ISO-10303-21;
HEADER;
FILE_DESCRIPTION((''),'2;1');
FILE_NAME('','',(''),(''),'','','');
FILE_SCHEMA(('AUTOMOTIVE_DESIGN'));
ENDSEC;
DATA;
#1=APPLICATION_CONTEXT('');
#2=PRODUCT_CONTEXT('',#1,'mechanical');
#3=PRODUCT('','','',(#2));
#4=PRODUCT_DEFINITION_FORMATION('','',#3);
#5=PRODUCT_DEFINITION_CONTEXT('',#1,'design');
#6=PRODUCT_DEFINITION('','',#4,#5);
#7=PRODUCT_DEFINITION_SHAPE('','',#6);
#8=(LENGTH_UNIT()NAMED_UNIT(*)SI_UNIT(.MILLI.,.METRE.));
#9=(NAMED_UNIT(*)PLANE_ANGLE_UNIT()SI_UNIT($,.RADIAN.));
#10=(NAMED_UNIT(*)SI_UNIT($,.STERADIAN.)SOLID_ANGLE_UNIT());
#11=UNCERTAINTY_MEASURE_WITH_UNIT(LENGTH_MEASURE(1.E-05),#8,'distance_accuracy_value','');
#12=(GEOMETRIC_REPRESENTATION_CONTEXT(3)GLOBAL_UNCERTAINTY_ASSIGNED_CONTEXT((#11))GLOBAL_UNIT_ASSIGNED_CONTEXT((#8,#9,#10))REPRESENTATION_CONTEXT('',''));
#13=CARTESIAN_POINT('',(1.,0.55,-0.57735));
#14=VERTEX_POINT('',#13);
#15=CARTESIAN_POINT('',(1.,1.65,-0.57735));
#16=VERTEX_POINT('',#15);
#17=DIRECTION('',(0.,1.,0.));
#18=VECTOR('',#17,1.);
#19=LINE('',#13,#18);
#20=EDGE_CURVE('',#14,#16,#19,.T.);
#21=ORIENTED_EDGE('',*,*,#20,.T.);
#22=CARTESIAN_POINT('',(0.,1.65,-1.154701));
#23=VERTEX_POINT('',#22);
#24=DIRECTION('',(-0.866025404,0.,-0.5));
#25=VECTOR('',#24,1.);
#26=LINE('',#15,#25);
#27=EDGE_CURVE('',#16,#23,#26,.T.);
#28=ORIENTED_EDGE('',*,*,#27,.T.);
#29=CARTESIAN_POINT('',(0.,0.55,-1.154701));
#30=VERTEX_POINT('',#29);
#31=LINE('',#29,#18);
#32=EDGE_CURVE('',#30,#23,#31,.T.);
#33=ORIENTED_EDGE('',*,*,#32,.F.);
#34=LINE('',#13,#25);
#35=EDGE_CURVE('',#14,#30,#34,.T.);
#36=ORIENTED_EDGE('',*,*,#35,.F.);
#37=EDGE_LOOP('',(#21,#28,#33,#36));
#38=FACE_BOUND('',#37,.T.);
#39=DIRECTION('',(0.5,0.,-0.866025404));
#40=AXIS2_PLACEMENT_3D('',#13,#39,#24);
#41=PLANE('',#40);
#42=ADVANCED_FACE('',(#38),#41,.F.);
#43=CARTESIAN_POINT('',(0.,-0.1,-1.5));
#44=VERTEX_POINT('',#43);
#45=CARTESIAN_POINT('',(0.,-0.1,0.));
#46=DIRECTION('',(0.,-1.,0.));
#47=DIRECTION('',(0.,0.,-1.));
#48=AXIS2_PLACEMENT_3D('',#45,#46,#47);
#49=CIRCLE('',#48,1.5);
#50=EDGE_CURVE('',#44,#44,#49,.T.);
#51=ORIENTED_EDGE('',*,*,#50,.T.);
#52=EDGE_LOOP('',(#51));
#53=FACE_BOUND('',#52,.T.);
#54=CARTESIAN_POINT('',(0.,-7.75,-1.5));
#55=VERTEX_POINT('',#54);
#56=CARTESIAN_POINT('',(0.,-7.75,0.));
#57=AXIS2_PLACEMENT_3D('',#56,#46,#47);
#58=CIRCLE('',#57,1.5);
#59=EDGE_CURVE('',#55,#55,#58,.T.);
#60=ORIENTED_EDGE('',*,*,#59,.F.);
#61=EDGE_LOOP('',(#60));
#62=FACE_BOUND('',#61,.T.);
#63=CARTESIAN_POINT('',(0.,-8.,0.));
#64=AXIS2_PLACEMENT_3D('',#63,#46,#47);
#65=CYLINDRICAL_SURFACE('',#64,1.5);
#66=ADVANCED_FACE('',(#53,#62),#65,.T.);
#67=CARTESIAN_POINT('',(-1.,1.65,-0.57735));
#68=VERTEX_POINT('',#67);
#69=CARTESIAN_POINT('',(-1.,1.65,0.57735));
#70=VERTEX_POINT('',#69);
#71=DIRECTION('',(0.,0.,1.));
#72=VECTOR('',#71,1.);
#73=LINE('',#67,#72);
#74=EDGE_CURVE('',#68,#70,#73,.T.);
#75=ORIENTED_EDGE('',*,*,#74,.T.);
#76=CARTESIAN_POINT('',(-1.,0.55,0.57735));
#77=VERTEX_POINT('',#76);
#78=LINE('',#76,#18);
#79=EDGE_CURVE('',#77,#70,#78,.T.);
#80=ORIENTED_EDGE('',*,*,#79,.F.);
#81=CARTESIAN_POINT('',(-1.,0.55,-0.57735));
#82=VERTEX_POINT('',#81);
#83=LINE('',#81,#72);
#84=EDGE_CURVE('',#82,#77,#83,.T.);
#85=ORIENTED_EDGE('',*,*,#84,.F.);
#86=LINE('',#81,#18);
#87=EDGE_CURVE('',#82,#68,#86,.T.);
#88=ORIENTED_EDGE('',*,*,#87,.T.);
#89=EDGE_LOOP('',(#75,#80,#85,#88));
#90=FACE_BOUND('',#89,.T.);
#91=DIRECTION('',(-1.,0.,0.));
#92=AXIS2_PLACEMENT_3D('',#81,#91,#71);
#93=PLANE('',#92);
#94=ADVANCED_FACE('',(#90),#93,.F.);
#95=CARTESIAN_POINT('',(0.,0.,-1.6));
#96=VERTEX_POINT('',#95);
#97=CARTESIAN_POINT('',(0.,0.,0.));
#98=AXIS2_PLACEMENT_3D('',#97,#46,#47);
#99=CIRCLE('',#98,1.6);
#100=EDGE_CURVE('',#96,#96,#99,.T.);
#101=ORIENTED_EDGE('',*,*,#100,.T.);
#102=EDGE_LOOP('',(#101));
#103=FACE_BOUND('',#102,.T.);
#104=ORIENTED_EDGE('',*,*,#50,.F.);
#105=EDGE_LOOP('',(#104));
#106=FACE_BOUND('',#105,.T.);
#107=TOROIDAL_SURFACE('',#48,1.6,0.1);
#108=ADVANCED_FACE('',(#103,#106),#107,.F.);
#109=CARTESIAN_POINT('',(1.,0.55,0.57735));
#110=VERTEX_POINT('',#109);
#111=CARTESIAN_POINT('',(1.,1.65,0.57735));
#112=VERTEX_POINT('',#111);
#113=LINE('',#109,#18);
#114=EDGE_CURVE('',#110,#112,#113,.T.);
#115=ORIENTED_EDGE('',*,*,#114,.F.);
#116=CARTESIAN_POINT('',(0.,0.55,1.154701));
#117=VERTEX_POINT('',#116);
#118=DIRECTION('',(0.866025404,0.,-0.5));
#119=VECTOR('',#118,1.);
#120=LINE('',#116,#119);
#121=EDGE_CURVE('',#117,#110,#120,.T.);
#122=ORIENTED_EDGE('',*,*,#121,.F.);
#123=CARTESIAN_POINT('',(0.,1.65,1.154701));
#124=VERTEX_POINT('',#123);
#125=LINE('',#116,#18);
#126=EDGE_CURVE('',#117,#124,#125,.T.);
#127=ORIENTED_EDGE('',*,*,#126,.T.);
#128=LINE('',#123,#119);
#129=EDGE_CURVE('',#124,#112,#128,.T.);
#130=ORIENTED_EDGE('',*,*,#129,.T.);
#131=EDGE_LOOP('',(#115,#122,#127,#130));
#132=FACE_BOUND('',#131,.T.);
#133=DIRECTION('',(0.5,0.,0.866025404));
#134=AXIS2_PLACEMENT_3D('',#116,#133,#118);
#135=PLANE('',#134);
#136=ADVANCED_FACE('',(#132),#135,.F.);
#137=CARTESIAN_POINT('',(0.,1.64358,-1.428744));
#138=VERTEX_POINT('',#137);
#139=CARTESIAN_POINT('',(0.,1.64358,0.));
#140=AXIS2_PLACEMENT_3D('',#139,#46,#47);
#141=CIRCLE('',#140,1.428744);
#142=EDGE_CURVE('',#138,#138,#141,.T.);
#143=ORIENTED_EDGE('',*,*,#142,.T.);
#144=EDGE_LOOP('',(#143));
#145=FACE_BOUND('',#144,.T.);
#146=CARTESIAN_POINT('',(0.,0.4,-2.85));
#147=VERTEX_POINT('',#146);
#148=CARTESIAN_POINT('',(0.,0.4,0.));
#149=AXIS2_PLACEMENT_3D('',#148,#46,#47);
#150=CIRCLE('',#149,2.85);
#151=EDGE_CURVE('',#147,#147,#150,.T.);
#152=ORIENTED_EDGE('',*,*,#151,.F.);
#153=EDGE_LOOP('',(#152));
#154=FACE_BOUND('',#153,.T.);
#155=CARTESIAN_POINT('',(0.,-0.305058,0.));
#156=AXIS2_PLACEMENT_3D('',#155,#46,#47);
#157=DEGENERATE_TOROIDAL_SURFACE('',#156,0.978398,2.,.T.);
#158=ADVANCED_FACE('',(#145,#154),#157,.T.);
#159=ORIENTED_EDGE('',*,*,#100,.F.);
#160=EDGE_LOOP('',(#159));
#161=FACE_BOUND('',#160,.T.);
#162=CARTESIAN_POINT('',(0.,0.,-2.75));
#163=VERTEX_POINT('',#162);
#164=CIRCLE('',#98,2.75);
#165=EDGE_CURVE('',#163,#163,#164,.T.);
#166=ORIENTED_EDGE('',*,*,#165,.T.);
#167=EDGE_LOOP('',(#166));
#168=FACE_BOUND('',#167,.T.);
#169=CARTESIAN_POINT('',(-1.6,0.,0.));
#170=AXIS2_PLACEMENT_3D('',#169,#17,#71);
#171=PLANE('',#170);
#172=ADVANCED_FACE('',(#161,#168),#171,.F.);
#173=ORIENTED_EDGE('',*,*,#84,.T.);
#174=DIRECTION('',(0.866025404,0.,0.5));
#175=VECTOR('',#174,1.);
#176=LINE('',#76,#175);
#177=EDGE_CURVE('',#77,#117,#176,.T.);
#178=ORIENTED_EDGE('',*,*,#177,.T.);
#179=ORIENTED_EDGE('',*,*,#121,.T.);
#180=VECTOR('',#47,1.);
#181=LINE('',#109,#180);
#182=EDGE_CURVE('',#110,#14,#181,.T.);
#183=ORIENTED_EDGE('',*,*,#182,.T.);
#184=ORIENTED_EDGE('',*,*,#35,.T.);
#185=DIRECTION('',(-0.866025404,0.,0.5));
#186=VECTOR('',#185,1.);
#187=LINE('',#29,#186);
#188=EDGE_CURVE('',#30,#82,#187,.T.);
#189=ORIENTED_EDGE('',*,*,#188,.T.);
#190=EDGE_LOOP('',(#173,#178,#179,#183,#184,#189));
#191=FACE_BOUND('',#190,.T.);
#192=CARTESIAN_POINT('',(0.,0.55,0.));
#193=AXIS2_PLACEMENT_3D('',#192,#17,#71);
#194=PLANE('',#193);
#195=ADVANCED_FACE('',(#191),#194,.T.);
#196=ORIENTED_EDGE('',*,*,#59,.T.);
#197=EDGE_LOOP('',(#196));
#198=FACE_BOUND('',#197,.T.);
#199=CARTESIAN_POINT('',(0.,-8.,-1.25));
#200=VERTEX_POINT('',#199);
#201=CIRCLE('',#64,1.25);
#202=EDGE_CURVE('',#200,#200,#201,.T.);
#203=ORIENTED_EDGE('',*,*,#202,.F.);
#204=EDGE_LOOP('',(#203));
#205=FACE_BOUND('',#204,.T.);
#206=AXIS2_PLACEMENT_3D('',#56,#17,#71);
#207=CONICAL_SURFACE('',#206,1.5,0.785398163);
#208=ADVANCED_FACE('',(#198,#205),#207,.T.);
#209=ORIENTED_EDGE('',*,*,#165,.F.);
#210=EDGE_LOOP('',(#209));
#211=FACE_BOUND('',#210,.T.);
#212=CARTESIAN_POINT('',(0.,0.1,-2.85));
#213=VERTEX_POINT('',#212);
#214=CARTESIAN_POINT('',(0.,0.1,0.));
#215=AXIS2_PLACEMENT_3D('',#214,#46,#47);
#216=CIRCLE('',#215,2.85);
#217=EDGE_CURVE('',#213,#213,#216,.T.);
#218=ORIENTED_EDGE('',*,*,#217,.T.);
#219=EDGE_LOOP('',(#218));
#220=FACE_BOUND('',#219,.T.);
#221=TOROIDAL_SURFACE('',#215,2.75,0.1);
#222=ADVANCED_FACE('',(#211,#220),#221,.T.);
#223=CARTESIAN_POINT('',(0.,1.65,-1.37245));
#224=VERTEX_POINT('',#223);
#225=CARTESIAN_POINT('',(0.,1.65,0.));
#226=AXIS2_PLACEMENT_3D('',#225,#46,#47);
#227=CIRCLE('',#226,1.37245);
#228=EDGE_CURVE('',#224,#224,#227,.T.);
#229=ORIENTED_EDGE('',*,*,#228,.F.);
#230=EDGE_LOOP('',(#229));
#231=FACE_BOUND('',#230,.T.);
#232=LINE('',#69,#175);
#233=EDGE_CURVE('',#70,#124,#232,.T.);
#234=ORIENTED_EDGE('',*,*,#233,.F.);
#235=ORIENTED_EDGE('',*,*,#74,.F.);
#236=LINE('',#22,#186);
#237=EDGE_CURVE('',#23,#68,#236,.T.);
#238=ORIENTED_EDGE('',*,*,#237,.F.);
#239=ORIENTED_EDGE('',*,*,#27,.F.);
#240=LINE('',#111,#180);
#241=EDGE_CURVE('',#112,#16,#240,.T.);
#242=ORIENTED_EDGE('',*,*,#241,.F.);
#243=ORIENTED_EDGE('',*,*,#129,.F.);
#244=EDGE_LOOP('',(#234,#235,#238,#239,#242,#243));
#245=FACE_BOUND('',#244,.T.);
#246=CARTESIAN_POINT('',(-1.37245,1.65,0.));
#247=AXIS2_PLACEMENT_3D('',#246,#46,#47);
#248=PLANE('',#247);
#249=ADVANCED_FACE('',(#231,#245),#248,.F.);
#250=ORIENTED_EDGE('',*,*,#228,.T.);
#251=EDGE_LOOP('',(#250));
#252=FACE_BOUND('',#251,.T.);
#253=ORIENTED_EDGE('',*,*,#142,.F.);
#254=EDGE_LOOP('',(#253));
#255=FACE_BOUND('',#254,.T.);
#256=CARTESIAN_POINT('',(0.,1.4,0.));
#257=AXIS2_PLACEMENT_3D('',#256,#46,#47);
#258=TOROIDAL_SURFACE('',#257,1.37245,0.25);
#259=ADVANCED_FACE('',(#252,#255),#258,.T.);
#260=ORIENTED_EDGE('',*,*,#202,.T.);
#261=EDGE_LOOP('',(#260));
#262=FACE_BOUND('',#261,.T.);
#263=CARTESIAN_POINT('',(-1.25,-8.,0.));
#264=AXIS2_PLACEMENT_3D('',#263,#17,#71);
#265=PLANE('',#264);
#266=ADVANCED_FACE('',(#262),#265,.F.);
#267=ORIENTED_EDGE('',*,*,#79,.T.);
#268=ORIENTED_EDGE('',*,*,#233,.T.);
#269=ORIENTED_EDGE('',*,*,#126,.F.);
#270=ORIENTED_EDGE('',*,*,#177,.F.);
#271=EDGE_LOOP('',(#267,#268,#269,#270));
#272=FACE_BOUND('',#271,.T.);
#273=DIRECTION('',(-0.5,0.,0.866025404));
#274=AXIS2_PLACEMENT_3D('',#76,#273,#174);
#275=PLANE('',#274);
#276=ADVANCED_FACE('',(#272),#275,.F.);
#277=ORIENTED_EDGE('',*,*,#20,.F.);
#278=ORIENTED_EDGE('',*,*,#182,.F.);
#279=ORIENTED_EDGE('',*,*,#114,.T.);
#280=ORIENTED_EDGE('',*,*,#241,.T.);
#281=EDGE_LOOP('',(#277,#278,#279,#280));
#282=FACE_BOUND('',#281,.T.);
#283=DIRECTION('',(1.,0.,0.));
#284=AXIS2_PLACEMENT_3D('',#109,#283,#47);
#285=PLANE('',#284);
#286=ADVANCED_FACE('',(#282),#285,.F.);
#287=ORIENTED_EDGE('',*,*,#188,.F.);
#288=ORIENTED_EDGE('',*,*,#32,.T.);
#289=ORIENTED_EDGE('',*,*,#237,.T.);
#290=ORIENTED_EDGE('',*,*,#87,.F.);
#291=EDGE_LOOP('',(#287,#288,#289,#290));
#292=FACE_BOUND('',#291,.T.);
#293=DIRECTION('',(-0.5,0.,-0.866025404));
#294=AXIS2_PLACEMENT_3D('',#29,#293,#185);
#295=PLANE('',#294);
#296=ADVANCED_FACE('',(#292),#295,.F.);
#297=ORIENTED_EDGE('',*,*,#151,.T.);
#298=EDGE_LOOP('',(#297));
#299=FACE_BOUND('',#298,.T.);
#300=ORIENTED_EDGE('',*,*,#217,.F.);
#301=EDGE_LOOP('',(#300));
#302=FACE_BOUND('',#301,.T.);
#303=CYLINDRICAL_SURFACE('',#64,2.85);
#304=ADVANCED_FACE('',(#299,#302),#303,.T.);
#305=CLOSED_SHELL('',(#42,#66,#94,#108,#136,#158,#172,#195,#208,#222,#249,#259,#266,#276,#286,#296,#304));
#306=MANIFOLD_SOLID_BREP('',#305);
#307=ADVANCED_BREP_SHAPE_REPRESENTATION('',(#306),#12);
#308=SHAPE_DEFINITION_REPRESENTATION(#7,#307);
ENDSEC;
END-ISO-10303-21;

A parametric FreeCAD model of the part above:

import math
import FreeCAD as App
import Part
import Sketcher

V = App.Vector
Q = App.Units.Quantity

doc = App.newDocument("Part")
body = doc.addObject("PartDesign::Body", "Body")

# Sketch on XY plane
sketch1 = doc.addObject("Sketcher::SketchObject", "Sketch")
body.addObject(sketch1)
sketch1.AttachmentSupport = (doc.XY_Plane, [""])
sketch1.MapMode = "FlatFace"
sketch1.addGeometry([
    Part.LineSegment(V(-1.5, -0.1, 0), V(-1.5, -7.75, 0)),  # 0
    Part.LineSegment(V(-1.5, -7.75, 0), V(-1.25, -8, 0)),  # 1
    Part.LineSegment(V(-1.25, -8, 0), V(0, -8, 0)),  # 2
    Part.LineSegment(V(0, -8, 0), V(0, 1.65, 0)),  # 3
    Part.LineSegment(V(0, 1.65, 0), V(-1.37245, 1.65, 0)),  # 4
    Part.ArcOfCircle(Part.Circle(V(-1.37245, 1.4, 0), V(0, 0, 1), 0.25), math.radians(90.000002), math.radians(103.013027)),  # 5
    Part.ArcOfCircle(Part.Circle(V(-0.978398, -0.305058, 0), V(0, 0, 1), 2), math.radians(103.01303), math.radians(159.35792)),  # 6
    Part.LineSegment(V(-2.85, 0.4, 0), V(-2.85, 0.1, 0)),  # 7
    Part.ArcOfCircle(Part.Circle(V(-2.75, 0.1, 0), V(0, 0, 1), 0.1), math.radians(180), math.radians(270)),  # 8
    Part.LineSegment(V(-2.75, 0, 0), V(-1.6, 0, 0)),  # 9
    Part.ArcOfCircle(Part.Circle(V(-1.6, -0.1, 0), V(0, 0, 1), 0.1), math.radians(0), math.radians(90)),  # 10
], False)
sketch1.addConstraint([
    Sketcher.Constraint("Coincident", 0, 2, 1, 1),
    Sketcher.Constraint("Coincident", 1, 2, 2, 1),
    Sketcher.Constraint("Coincident", 2, 2, 3, 1),
    Sketcher.Constraint("Coincident", 3, 2, 4, 1),
    Sketcher.Constraint("Tangent", 4, 2, 5, 1),
    Sketcher.Constraint("Tangent", 5, 2, 6, 1),
    Sketcher.Constraint("Coincident", 6, 2, 7, 1),
    Sketcher.Constraint("Tangent", 7, 2, 8, 1),
    Sketcher.Constraint("Tangent", 8, 2, 9, 1),
    Sketcher.Constraint("Tangent", 9, 2, 10, 2),
    Sketcher.Constraint("Tangent", 10, 1, 0, 1),
    Sketcher.Constraint("Vertical", 0),
    Sketcher.Constraint("Horizontal", 2),
    Sketcher.Constraint("Vertical", 3),
    Sketcher.Constraint("Horizontal", 4),
    Sketcher.Constraint("Vertical", 7),
    Sketcher.Constraint("Horizontal", 9),
    Sketcher.Constraint("Equal", 8, 10),
    Sketcher.Constraint("PointOnObject", 2, 2, -2),
    Sketcher.Constraint("PointOnObject", 8, 2, -1),
    Sketcher.Constraint("Radius", 6, 2.0),
    Sketcher.Constraint("Radius", 8, 0.1),
    Sketcher.Constraint("Angle", 1, Q("-45 deg")),
    Sketcher.Constraint("Radius", 5, 0.25),
    Sketcher.Constraint("DistanceY", 7, 2, 7, 1, 0.3),
    Sketcher.Constraint("DistanceY", 1, 2, -1, 1, 8.0),
    Sketcher.Constraint("DistanceY", 6, 2, 5, 3, 1.0),
    Sketcher.Constraint("DistanceX", 2, 1, 2, 2, 1.25),
    Sketcher.Constraint("DistanceX", 9, 1, 9, 2, 1.15),
    Sketcher.Constraint("DistanceY", 0, 2, 0, 1, 7.65),
    Sketcher.Constraint("DistanceX", 4, 2, 4, 1, 1.37245),
])
revolution = doc.addObject("PartDesign::Revolution", "Revolution")
body.addObject(revolution)
revolution.Profile = sketch1
revolution.ReferenceAxis = (sketch1, ["V_Axis"])
revolution.Angle = 360

# Sketch on XZ plane
sketch2 = doc.addObject("Sketcher::SketchObject", "Sketch001")
body.addObject(sketch2)
sketch2.AttachmentSupport = (doc.XZ_Plane, [""])
sketch2.MapMode = "FlatFace"
sketch2.AttachmentOffset = App.Placement(V(0, 0, -1.65), App.Rotation())
sketch2.addGeometry([
    Part.LineSegment(V(-1, -0.57735, 0), V(-1, 0.57735, 0)),  # 0
    Part.LineSegment(V(-1, 0.57735, 0), V(0, 1.154701, 0)),  # 1
    Part.LineSegment(V(0, 1.154701, 0), V(1, 0.57735, 0)),  # 2
    Part.LineSegment(V(1, 0.57735, 0), V(1, -0.57735, 0)),  # 3
    Part.LineSegment(V(1, -0.57735, 0), V(0, -1.154701, 0)),  # 4
    Part.LineSegment(V(0, -1.154701, 0), V(-1, -0.57735, 0)),  # 5
], False)
sketch2.addConstraint([
    Sketcher.Constraint("Coincident", 0, 2, 1, 1),
    Sketcher.Constraint("Coincident", 1, 2, 2, 1),
    Sketcher.Constraint("Coincident", 2, 2, 3, 1),
    Sketcher.Constraint("Coincident", 3, 2, 4, 1),
    Sketcher.Constraint("Coincident", 4, 2, 5, 1),
    Sketcher.Constraint("Coincident", 5, 2, 0, 1),
    Sketcher.Constraint("Vertical", 0),
    Sketcher.Constraint("Vertical", 3),
    Sketcher.Constraint("Symmetric", 0, 2, 3, 2, -1, 1),
    Sketcher.Constraint("Symmetric", 1, 2, 4, 2, -1, 1),
    Sketcher.Constraint("PointOnObject", 1, 2, -2),
    Sketcher.Constraint("Parallel", 2, 5),
    Sketcher.Constraint("Horizontal", 0, 2, 2, 2),
    Sketcher.Constraint("Angle", 1, Q("30 deg")),
    Sketcher.Constraint("DistanceX", 0, 2, -1, 1, 1.0),
    Sketcher.Constraint("DistanceY", 0, 1, 0, 2, 1.154701),
])
pocket1 = doc.addObject("PartDesign::Pocket", "Pocket")
body.addObject(pocket1)
pocket1.Profile = sketch2
pocket1.Length = 1.1
pocket1.Reversed = True

doc.recompute()
